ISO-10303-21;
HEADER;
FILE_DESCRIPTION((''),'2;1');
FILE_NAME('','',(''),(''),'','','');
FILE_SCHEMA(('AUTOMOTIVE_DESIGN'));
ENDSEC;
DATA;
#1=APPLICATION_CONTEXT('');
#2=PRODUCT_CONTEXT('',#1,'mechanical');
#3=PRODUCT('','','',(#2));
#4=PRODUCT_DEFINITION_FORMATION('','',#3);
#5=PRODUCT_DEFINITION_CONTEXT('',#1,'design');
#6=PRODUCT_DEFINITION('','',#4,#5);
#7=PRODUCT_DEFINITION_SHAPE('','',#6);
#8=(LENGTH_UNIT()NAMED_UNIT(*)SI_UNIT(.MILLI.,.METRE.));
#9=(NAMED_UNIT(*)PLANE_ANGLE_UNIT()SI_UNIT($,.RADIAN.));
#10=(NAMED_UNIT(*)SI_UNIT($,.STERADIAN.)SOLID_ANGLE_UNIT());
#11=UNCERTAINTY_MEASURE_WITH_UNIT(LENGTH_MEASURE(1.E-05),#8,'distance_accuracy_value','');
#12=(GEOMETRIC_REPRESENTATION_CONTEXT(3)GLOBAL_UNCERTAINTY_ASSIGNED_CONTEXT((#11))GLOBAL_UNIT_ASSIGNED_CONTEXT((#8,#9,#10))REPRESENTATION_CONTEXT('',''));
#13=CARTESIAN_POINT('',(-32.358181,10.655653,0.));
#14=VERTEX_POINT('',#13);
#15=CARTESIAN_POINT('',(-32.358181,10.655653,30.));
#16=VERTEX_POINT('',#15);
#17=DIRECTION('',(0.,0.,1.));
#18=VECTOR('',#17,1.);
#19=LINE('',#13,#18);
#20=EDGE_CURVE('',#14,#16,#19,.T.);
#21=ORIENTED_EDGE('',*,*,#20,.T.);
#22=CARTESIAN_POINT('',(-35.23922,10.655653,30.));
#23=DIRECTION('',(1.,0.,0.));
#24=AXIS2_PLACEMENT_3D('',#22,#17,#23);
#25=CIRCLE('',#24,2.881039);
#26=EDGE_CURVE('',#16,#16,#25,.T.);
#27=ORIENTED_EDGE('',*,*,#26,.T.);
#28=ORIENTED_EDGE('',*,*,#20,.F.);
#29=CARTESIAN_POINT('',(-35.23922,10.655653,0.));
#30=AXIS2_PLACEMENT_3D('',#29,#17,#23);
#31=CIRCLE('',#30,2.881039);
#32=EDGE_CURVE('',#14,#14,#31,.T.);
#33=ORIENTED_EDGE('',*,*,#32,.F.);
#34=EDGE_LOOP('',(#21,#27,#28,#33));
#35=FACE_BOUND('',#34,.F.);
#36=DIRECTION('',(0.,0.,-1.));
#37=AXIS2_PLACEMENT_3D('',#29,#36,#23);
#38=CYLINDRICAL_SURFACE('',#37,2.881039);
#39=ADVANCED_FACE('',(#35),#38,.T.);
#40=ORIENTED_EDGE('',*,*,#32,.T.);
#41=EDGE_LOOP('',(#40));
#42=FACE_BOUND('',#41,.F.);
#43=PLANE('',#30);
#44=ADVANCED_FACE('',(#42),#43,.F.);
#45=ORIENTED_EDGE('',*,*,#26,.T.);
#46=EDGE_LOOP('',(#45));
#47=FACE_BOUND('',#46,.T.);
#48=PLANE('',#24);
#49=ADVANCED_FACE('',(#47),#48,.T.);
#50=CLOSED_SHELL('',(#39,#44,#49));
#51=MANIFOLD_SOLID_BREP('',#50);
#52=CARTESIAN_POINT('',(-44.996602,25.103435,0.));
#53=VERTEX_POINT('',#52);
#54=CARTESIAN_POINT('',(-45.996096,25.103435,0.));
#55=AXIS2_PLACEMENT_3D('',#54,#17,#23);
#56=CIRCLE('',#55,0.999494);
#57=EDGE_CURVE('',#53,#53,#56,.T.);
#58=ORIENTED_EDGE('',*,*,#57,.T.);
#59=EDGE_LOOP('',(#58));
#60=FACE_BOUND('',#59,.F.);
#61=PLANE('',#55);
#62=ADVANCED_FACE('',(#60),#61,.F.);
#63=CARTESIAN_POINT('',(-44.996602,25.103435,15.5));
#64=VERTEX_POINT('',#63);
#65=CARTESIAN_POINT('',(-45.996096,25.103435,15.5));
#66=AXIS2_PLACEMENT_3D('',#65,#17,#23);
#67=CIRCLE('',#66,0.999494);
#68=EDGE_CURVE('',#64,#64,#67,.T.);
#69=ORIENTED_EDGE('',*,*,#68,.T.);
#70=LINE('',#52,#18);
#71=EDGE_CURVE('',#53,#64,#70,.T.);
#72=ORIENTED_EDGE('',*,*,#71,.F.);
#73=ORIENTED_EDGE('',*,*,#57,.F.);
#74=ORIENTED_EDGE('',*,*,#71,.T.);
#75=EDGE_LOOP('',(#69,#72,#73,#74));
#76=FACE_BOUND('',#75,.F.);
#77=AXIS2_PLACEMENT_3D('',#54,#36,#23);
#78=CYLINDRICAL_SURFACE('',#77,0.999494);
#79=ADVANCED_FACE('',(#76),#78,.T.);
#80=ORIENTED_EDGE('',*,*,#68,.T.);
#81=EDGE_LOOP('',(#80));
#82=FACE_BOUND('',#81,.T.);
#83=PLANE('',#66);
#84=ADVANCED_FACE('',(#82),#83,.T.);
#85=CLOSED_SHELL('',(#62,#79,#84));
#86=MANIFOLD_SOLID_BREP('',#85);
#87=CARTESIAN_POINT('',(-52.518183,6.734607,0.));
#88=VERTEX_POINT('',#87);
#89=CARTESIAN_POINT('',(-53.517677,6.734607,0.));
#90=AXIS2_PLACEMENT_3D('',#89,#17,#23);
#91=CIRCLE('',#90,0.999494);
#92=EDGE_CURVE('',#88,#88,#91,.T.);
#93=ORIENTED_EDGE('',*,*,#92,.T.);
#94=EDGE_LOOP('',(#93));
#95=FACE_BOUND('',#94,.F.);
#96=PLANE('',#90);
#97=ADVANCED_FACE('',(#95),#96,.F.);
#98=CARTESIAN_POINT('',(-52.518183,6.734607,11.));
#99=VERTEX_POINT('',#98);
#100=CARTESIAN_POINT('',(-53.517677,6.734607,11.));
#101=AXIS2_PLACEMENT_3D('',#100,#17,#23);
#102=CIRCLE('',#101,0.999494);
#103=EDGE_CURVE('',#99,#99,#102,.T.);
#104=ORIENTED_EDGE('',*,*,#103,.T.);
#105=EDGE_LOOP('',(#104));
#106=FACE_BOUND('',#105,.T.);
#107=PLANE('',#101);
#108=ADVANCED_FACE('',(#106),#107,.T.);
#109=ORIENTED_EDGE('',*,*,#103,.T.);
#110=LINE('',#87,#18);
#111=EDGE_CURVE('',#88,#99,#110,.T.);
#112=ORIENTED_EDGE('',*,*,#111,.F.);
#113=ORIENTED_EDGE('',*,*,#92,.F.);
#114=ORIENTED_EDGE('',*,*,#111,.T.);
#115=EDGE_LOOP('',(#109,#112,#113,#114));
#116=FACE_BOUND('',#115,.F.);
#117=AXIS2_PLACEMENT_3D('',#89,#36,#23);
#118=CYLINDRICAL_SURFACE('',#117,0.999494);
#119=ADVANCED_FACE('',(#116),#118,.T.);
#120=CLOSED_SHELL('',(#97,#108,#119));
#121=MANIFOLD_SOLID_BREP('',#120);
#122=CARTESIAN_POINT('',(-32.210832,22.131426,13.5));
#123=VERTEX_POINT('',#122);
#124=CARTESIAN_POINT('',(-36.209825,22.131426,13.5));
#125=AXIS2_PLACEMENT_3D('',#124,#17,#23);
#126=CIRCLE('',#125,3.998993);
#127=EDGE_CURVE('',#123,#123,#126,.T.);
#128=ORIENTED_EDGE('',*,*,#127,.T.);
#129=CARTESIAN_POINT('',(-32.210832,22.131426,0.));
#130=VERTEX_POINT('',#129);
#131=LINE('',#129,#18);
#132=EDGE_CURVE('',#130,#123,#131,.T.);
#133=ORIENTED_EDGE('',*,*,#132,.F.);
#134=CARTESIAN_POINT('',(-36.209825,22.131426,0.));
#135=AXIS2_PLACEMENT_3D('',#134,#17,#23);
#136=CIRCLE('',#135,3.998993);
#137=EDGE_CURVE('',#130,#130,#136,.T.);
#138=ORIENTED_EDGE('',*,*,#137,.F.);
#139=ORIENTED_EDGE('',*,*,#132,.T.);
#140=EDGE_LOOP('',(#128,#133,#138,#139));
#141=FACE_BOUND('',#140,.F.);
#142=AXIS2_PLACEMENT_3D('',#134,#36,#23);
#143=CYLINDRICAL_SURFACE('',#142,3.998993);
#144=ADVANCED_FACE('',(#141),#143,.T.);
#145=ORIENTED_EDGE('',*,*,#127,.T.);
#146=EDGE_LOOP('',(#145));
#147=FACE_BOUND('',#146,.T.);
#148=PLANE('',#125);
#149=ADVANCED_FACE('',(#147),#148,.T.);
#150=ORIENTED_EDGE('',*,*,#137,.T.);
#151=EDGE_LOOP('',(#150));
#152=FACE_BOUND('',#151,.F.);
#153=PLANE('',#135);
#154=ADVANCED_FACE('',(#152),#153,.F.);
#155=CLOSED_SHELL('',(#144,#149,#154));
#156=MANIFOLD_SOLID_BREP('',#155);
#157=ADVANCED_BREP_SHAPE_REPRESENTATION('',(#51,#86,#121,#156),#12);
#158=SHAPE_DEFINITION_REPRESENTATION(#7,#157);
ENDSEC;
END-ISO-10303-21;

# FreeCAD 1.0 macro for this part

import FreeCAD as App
import Part
import Sketcher
Q = App.Units.Quantity

doc = App.newDocument("Part")
body = doc.addObject("PartDesign::Body", "Body")

sketch1 = body.newObject("Sketcher::SketchObject", "Sketch")
sketch1.AttachmentSupport = (doc.getObject("XY_Plane"), [""])
sketch1.MapMode = "FlatFace"
sketch1.addGeometry(Part.Circle(App.Vector(-36.2, 22.1, 0), App.Vector(0, 0, 1), 4), False)
sketch1.addConstraint([
    Sketcher.Constraint("Diameter", 0, Q("7.997986 mm")),
    Sketcher.Constraint("DistanceX", 0, 3, -1, 1, Q("36.209825 mm")),
    Sketcher.Constraint("DistanceY", -1, 1, 0, 3, Q("22.131426 mm")),
])
pad1 = body.newObject("PartDesign::Pad", "Pad")
pad1.Profile = sketch1
pad1.Length = 13.5
body2 = doc.addObject("PartDesign::Body", "Body001")

sketch2 = body2.newObject("Sketcher::SketchObject", "Sketch001")
sketch2.AttachmentSupport = (doc.getObject("XY_Plane001"), [""])
sketch2.MapMode = "FlatFace"
sketch2.addGeometry(Part.Circle(App.Vector(-46, 25.1, 0), App.Vector(0, 0, 1), 1), False)
sketch2.addConstraint([
    Sketcher.Constraint("Diameter", 0, Q("1.998988 mm")),
    Sketcher.Constraint("DistanceX", 0, 3, -1, 1, Q("45.996096 mm")),
    Sketcher.Constraint("DistanceY", -1, 1, 0, 3, Q("25.103435 mm")),
])
pad2 = body2.newObject("PartDesign::Pad", "Pad001")
pad2.Profile = sketch2
pad2.Length = 15.5
body3 = doc.addObject("PartDesign::Body", "Body002")

sketch3 = body3.newObject("Sketcher::SketchObject", "Sketch002")
sketch3.AttachmentSupport = (doc.getObject("XY_Plane002"), [""])
sketch3.MapMode = "FlatFace"
sketch3.addGeometry(Part.Circle(App.Vector(-53.5, 6.7, 0), App.Vector(0, 0, 1), 1), False)
sketch3.addConstraint([
    Sketcher.Constraint("Diameter", 0, Q("1.998988 mm")),
    Sketcher.Constraint("DistanceX", 0, 3, -1, 1, Q("53.517677 mm")),
    Sketcher.Constraint("DistanceY", -1, 1, 0, 3, Q("6.734607 mm")),
])
pad3 = body3.newObject("PartDesign::Pad", "Pad002")
pad3.Profile = sketch3
pad3.Length = 11
body4 = doc.addObject("PartDesign::Body", "Body003")

sketch4 = body4.newObject("Sketcher::SketchObject", "Sketch003")
sketch4.AttachmentSupport = (doc.getObject("XY_Plane003"), [""])
sketch4.MapMode = "FlatFace"
sketch4.addGeometry(Part.Circle(App.Vector(-35.2, 10.7, 0), App.Vector(0, 0, 1), 2.9), False)
sketch4.addConstraint([
    Sketcher.Constraint("Diameter", 0, Q("5.762078 mm")),
    Sketcher.Constraint("DistanceX", 0, 3, -1, 1, Q("35.23922 mm")),
    Sketcher.Constraint("DistanceY", -1, 1, 0, 3, Q("10.655653 mm")),
])
pad4 = body4.newObject("PartDesign::Pad", "Pad003")
pad4.Profile = sketch4
pad4.Length = 30

doc.recompute()
